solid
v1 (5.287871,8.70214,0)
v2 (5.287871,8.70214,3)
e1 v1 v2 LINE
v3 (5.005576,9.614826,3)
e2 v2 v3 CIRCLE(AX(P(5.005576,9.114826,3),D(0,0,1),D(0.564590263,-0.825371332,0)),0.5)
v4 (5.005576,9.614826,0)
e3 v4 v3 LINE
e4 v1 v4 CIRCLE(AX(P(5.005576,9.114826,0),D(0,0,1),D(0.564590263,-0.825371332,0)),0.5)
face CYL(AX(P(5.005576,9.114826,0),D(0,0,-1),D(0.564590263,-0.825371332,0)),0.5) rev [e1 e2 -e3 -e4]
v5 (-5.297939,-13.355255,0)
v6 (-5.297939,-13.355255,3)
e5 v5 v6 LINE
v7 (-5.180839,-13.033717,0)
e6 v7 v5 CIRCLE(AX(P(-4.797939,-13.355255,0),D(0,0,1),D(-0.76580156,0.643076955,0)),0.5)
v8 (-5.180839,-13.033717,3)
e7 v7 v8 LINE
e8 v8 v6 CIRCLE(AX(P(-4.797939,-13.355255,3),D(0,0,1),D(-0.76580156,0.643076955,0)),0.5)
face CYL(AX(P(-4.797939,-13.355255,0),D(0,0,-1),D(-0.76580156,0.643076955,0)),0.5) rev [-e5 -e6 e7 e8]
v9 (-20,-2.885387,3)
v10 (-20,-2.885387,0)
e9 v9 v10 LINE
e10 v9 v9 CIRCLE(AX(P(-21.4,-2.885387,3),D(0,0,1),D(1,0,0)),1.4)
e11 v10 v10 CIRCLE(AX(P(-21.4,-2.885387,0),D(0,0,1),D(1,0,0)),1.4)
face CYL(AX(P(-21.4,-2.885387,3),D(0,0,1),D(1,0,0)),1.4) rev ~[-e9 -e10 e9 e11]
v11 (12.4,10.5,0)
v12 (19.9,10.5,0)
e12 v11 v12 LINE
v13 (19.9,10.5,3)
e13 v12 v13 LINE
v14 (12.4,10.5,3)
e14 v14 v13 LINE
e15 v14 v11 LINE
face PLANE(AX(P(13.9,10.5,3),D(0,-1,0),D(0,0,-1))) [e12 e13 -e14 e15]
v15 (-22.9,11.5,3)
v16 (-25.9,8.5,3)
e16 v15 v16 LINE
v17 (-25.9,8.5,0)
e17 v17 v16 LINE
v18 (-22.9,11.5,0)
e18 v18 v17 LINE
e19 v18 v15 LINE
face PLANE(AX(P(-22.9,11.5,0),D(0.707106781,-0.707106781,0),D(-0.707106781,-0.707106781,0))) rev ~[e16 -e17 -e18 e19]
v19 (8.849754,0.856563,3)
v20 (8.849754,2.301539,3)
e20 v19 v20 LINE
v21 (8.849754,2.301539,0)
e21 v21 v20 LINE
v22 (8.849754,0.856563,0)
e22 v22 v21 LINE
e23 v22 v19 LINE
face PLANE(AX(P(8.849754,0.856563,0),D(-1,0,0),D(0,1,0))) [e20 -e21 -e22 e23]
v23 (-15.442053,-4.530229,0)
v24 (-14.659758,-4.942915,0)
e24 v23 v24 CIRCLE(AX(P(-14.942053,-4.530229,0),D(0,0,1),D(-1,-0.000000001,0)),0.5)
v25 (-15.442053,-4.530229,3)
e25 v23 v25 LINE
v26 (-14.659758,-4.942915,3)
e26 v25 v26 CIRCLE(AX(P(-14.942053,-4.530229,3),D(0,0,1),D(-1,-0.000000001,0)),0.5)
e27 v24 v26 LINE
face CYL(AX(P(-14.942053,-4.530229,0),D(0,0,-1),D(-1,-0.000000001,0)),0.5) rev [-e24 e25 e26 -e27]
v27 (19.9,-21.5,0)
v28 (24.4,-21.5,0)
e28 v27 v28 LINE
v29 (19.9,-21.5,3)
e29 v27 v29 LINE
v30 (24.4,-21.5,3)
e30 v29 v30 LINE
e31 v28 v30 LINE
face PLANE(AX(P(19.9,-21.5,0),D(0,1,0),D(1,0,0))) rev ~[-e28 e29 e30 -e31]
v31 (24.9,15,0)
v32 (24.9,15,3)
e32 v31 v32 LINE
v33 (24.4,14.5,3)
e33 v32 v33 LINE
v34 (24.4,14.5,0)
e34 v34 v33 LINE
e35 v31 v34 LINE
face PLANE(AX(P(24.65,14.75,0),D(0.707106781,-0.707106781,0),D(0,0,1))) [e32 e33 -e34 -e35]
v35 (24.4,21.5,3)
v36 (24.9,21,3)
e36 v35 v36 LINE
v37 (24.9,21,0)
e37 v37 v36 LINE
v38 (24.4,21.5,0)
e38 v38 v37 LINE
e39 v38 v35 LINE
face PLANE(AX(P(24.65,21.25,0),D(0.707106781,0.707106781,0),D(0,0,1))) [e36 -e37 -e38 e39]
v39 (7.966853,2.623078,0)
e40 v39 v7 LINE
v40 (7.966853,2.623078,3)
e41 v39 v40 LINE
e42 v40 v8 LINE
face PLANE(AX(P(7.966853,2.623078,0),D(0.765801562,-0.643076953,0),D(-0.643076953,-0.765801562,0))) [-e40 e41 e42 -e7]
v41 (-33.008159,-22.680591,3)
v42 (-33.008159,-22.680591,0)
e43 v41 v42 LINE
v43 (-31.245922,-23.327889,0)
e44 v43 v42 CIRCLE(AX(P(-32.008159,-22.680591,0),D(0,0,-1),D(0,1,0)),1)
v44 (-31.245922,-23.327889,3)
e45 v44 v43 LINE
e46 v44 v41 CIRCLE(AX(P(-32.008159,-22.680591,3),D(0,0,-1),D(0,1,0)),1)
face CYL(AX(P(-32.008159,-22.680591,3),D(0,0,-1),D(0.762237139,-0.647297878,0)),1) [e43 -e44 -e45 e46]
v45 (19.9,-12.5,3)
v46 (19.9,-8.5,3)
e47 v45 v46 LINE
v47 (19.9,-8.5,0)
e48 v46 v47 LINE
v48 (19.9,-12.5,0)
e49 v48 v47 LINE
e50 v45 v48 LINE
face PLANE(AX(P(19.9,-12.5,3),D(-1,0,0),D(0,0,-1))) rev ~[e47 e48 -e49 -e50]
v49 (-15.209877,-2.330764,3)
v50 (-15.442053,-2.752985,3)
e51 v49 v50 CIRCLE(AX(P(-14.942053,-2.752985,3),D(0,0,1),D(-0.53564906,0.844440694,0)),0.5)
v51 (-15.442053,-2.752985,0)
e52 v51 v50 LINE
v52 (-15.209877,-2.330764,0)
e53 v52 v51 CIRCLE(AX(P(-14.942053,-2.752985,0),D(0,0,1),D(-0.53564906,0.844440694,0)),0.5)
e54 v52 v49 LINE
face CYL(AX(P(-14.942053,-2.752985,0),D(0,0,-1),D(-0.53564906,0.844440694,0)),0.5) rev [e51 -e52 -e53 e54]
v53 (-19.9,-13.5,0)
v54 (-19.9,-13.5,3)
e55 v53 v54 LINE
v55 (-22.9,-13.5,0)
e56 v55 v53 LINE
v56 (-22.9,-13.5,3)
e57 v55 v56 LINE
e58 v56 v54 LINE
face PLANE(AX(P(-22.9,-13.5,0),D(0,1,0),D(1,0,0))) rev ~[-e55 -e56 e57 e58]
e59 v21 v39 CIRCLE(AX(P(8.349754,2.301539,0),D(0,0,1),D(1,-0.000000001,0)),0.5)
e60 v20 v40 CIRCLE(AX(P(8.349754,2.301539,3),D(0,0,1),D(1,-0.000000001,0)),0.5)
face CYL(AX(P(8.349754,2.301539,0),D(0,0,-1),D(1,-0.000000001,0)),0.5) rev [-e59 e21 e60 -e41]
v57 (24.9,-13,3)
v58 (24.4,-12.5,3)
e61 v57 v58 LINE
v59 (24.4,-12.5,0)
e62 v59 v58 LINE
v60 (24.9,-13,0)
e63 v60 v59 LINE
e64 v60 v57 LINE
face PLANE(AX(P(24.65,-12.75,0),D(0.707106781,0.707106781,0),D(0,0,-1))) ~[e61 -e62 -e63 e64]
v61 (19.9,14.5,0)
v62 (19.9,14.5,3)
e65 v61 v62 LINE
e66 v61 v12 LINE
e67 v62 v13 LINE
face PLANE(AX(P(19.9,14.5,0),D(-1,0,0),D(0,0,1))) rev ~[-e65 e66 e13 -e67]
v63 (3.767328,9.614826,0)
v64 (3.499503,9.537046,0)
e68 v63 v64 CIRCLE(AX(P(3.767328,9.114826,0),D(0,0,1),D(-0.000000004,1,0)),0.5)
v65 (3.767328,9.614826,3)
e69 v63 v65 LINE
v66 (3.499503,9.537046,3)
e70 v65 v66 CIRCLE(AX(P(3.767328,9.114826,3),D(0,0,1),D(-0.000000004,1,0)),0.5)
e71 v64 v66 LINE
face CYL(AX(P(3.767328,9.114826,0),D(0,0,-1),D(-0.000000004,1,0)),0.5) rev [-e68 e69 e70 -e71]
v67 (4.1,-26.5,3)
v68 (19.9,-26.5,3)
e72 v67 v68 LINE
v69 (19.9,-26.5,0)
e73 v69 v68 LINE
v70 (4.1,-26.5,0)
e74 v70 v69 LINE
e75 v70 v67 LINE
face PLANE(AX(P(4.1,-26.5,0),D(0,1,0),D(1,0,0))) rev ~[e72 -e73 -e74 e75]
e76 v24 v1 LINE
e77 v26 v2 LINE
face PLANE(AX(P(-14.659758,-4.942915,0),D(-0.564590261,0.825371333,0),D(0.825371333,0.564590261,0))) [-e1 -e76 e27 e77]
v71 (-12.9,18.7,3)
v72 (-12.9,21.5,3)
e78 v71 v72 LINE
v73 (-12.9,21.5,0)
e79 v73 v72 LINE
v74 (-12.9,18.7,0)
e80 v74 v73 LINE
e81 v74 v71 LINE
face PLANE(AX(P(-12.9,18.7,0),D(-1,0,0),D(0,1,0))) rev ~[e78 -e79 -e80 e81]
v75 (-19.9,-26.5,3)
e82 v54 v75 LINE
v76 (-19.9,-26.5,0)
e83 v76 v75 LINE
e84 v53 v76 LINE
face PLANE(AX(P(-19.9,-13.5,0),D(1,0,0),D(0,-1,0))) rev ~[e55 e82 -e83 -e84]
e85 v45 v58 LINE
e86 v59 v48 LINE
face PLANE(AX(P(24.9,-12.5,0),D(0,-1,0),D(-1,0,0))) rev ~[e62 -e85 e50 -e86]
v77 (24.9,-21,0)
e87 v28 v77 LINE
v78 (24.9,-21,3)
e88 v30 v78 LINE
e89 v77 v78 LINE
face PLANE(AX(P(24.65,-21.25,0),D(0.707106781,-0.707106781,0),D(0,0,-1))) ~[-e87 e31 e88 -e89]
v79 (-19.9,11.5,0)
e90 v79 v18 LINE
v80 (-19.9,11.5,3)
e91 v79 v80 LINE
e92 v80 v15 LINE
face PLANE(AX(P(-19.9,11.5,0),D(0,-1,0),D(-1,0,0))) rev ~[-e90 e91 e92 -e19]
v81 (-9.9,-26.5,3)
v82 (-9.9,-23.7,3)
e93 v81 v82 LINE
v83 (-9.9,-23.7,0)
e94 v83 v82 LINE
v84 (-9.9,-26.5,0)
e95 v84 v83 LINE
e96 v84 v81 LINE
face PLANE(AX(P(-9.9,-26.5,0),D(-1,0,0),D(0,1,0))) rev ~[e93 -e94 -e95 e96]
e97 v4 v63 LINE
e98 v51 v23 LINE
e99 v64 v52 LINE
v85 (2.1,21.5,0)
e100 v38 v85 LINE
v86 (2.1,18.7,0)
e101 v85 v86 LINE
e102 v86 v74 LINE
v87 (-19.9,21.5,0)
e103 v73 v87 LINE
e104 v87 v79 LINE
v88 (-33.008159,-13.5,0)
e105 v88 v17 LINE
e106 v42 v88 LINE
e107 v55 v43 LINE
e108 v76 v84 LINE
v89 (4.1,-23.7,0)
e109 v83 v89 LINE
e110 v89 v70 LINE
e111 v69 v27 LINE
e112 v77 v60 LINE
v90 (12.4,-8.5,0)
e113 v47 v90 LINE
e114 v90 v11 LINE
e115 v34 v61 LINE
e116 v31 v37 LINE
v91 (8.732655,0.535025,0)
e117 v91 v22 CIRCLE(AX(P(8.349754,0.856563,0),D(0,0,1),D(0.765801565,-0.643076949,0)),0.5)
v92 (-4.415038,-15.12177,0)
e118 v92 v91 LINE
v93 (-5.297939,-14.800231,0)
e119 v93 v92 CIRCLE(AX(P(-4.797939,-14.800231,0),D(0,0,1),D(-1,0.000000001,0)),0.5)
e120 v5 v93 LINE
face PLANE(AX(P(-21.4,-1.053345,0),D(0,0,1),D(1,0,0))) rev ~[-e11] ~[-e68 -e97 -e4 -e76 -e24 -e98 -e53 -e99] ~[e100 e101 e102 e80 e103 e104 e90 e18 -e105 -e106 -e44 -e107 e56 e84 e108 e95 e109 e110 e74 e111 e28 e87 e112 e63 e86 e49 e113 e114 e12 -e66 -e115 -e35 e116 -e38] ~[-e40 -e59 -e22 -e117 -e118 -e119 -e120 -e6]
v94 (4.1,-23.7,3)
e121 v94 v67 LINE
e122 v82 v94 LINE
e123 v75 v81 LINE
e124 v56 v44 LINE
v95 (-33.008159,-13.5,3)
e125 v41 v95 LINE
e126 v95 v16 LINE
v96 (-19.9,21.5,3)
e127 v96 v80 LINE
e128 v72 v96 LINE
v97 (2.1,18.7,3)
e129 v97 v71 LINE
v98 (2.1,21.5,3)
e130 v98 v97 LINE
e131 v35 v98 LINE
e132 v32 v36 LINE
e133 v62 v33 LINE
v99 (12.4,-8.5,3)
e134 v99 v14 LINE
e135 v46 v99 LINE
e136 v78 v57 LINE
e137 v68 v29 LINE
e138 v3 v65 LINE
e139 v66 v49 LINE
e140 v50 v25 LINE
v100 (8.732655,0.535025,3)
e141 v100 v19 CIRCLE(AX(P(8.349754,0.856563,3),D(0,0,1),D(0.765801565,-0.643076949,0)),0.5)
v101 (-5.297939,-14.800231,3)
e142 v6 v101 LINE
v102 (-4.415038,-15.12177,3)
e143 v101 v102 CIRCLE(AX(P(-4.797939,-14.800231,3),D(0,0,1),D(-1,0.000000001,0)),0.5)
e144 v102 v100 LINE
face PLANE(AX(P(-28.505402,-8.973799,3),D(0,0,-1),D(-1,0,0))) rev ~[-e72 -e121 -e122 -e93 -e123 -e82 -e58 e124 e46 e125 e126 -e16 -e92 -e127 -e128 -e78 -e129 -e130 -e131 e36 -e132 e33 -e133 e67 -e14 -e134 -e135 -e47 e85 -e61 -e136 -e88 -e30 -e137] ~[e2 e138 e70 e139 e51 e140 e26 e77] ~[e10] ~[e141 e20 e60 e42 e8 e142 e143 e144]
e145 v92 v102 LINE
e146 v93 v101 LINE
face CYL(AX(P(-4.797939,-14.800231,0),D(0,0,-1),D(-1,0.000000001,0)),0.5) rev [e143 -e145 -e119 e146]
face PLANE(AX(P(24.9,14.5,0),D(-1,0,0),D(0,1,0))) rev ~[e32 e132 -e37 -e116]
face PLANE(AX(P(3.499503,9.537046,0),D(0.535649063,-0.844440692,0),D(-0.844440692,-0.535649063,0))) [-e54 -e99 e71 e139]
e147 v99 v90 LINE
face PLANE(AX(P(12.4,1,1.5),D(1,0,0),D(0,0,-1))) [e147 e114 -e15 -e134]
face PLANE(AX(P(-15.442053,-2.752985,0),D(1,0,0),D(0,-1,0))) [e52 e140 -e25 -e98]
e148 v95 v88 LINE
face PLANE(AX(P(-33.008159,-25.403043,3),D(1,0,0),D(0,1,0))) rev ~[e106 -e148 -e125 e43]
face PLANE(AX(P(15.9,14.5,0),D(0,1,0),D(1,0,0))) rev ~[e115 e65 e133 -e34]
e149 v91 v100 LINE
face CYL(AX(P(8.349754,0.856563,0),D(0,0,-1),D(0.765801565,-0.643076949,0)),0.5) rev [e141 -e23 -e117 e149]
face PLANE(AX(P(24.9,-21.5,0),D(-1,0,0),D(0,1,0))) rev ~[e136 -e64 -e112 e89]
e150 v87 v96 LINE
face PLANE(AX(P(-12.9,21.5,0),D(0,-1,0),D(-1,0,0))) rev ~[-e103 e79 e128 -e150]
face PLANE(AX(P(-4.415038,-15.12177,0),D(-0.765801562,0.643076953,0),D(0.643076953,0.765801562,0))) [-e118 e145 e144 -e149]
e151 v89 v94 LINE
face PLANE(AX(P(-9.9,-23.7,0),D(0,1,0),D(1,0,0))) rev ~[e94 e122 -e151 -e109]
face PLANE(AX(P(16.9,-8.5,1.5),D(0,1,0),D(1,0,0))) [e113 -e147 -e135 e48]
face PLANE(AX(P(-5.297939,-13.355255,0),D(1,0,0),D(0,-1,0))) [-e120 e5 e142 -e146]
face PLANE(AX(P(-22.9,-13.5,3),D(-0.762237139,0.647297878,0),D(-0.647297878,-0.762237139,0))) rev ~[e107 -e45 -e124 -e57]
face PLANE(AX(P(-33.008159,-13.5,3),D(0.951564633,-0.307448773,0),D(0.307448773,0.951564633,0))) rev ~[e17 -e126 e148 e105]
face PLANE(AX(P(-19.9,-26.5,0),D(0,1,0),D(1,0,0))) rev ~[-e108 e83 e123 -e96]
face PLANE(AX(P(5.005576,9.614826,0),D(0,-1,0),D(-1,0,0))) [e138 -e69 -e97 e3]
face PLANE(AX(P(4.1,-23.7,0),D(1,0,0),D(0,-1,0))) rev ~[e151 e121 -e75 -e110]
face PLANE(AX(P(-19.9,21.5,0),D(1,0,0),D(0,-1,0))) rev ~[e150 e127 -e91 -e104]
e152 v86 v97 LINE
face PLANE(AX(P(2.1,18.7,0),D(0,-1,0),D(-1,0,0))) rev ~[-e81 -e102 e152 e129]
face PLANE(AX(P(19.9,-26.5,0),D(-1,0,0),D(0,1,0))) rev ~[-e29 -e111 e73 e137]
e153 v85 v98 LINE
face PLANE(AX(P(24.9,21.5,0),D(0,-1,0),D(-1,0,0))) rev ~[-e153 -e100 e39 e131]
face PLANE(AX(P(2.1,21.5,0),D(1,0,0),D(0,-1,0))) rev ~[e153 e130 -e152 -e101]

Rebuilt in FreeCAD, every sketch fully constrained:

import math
import FreeCAD as App
import Part
import Sketcher
from FreeCAD import Vector
Q = App.Units.Quantity


def edges_at(feature, points):
    """Names of the edges that pass closest to the given points."""
    edges = feature.Shape.Edges
    near = lambda p: min(range(len(edges)), key=lambda i: edges[i].distToShape(Part.Vertex(*p))[0])
    return sorted({f"Edge{near(p) + 1}" for p in points})

doc = App.newDocument("Part")
body = doc.addObject("PartDesign::Body", "Body")

# Sketch on XY plane
sketch1 = body.newObject("Sketcher::SketchObject", "Sketch")
sketch1.AttachmentSupport = (doc.getObject("XY_Plane"), [""])
sketch1.MapMode = "FlatFace"
sketch1.addGeometry(Part.LineSegment(Vector(24.9, -12.5, 0), Vector(15.9, -12.5, 0)), False)
sketch1.addGeometry(Part.LineSegment(Vector(15.9, -12.5, 0), Vector(15.9, 14.5, 0)), False)
sketch1.addGeometry(Part.LineSegment(Vector(15.9, 14.5, 0), Vector(24.9, 14.5, 0)), False)
sketch1.addGeometry(Part.LineSegment(Vector(24.9, 14.5, 0), Vector(24.9, 21.5, 0)), False)
sketch1.addGeometry(Part.LineSegment(Vector(24.9, 21.5, 0), Vector(2.1, 21.5, 0)), False)
sketch1.addGeometry(Part.LineSegment(Vector(2.1, 21.5, 0), Vector(2.1, 18.7, 0)), False)
sketch1.addGeometry(Part.LineSegment(Vector(2.1, 18.7, 0), Vector(-12.9, 18.7, 0)), False)
sketch1.addGeometry(Part.LineSegment(Vector(-12.9, 18.7, 0), Vector(-12.9, 21.5, 0)), False)
sketch1.addGeometry(Part.LineSegment(Vector(-12.9, 21.5, 0), Vector(-19.9, 21.5, 0)), False)
sketch1.addGeometry(Part.LineSegment(Vector(-19.9, 21.5, 0), Vector(-19.9, 11.5, 0)), False)
sketch1.addGeometry(Part.LineSegment(Vector(-19.9, 11.5, 0), Vector(-22.9, 11.5, 0)), False)
sketch1.addGeometry(Part.LineSegment(Vector(-22.9, 11.5, 0), Vector(-25.9, 8.5, 0)), False)
sketch1.addGeometry(Part.LineSegment(Vector(-25.9, 8.5, 0), Vector(-25.9, -10.5, 0)), False)
sketch1.addGeometry(Part.LineSegment(Vector(-25.9, -10.5, 0), Vector(-22.9, -13.5, 0)), False)
sketch1.addGeometry(Part.LineSegment(Vector(-22.9, -13.5, 0), Vector(-19.9, -13.5, 0)), False)
sketch1.addGeometry(Part.LineSegment(Vector(-19.9, -13.5, 0), Vector(-19.9, -26.5, 0)), False)
sketch1.addGeometry(Part.LineSegment(Vector(-19.9, -26.5, 0), Vector(-9.9, -26.5, 0)), False)
sketch1.addGeometry(Part.LineSegment(Vector(-9.9, -26.5, 0), Vector(-9.9, -23.7, 0)), False)
sketch1.addGeometry(Part.LineSegment(Vector(-9.9, -23.7, 0), Vector(4.1, -23.7, 0)), False)
sketch1.addGeometry(Part.LineSegment(Vector(4.1, -23.7, 0), Vector(4.1, -26.5, 0)), False)
sketch1.addGeometry(Part.LineSegment(Vector(4.1, -26.5, 0), Vector(19.9, -26.5, 0)), False)
sketch1.addGeometry(Part.LineSegment(Vector(19.9, -26.5, 0), Vector(19.9, -21.5, 0)), False)
sketch1.addGeometry(Part.LineSegment(Vector(19.9, -21.5, 0), Vector(24.9, -21.5, 0)), False)
sketch1.addGeometry(Part.LineSegment(Vector(24.9, -21.5, 0), Vector(24.9, -12.5, 0)), False)
sketch1.addGeometry(Part.LineSegment(Vector(-5.180839, -13.033717, 0), Vector(7.966853, 2.623078, 0)), False)
sketch1.addGeometry(Part.ArcOfCircle(Part.Circle(Vector(8.349754, 2.301539, 0), Vector(0, 0, 1), 0.5), math.radians(0), math.radians(139.978355)), False)
sketch1.addGeometry(Part.LineSegment(Vector(8.849754, 2.301539, 0), Vector(8.849754, 0.856563, 0)), False)
sketch1.addGeometry(Part.ArcOfCircle(Part.Circle(Vector(8.349754, 0.856563, 0), Vector(0, 0, 1), 0.5), math.radians(-40.021644), math.radians(0)), False)
sketch1.addGeometry(Part.LineSegment(Vector(8.732655, 0.535025, 0), Vector(-4.415038, -15.12177, 0)), False)
sketch1.addGeometry(Part.ArcOfCircle(Part.Circle(Vector(-4.797939, -14.800231, 0), Vector(0, 0, 1), 0.5), math.radians(180), math.radians(319.978355)), False)
sketch1.addGeometry(Part.LineSegment(Vector(-5.297939, -14.800231, 0), Vector(-5.297939, -13.355255, 0)), False)
sketch1.addGeometry(Part.ArcOfCircle(Part.Circle(Vector(-4.797939, -13.355255, 0), Vector(0, 0, 1), 0.5), math.radians(139.978355), math.radians(180)), False)
sketch1.addGeometry(Part.Circle(Vector(-21.4, -1.053345, 0), Vector(0, 0, 1), 1.8), False)
sketch1.addGeometry(Part.LineSegment(Vector(-15.209877, -2.330764, 0), Vector(3.499503, 9.537046, 0)), False)
sketch1.addGeometry(Part.ArcOfCircle(Part.Circle(Vector(3.767328, 9.114826, 0), Vector(0, 0, 1), 0.5), math.radians(90), math.radians(122.38794)), False)
sketch1.addGeometry(Part.LineSegment(Vector(3.767328, 9.614826, 0), Vector(5.005576, 9.614826, 0)), False)
sketch1.addGeometry(Part.ArcOfCircle(Part.Circle(Vector(5.005576, 9.114826, 0), Vector(0, 0, 1), 0.5), math.radians(-55.626157), math.radians(90)), False)
sketch1.addGeometry(Part.LineSegment(Vector(5.287871, 8.70214, 0), Vector(-14.659758, -4.942915, 0)), False)
sketch1.addGeometry(Part.ArcOfCircle(Part.Circle(Vector(-14.942053, -4.530229, 0), Vector(0, 0, 1), 0.5), math.radians(180), math.radians(304.373843)), False)
sketch1.addGeometry(Part.LineSegment(Vector(-15.442053, -4.530229, 0), Vector(-15.442053, -2.752985, 0)), False)
sketch1.addGeometry(Part.ArcOfCircle(Part.Circle(Vector(-14.942053, -2.752985, 0), Vector(0, 0, 1), 0.5), math.radians(122.38794), math.radians(180)), False)
sketch1.addConstraint(Sketcher.Constraint("Coincident", 0, 2, 1, 1))
sketch1.addConstraint(Sketcher.Constraint("Coincident", 1, 2, 2, 1))
sketch1.addConstraint(Sketcher.Constraint("Coincident", 2, 2, 3, 1))
sketch1.addConstraint(Sketcher.Constraint("Coincident", 3, 2, 4, 1))
sketch1.addConstraint(Sketcher.Constraint("Coincident", 4, 2, 5, 1))
sketch1.addConstraint(Sketcher.Constraint("Coincident", 5, 2, 6, 1))
sketch1.addConstraint(Sketcher.Constraint("Coincident", 6, 2, 7, 1))
sketch1.addConstraint(Sketcher.Constraint("Coincident", 7, 2, 8, 1))
sketch1.addConstraint(Sketcher.Constraint("Coincident", 8, 2, 9, 1))
sketch1.addConstraint(Sketcher.Constraint("Coincident", 9, 2, 10, 1))
sketch1.addConstraint(Sketcher.Constraint("Coincident", 10, 2, 11, 1))
sketch1.addConstraint(Sketcher.Constraint("Coincident", 11, 2, 12, 1))
sketch1.addConstraint(Sketcher.Constraint("Coincident", 12, 2, 13, 1))
sketch1.addConstraint(Sketcher.Constraint("Coincident", 13, 2, 14, 1))
sketch1.addConstraint(Sketcher.Constraint("Coincident", 14, 2, 15, 1))
sketch1.addConstraint(Sketcher.Constraint("Coincident", 15, 2, 16, 1))
sketch1.addConstraint(Sketcher.Constraint("Coincident", 16, 2, 17, 1))
sketch1.addConstraint(Sketcher.Constraint("Coincident", 17, 2, 18, 1))
sketch1.addConstraint(Sketcher.Constraint("Coincident", 18, 2, 19, 1))
sketch1.addConstraint(Sketcher.Constraint("Coincident", 19, 2, 20, 1))
sketch1.addConstraint(Sketcher.Constraint("Coincident", 20, 2, 21, 1))
sketch1.addConstraint(Sketcher.Constraint("Coincident", 21, 2, 22, 1))
sketch1.addConstraint(Sketcher.Constraint("Coincident", 22, 2, 23, 1))
sketch1.addConstraint(Sketcher.Constraint("Coincident", 23, 2, 0, 1))
sketch1.addConstraint(Sketcher.Constraint("Coincident", 24, 2, 25, 2))
sketch1.addConstraint(Sketcher.Constraint("Coincident", 25, 1, 26, 1))
sketch1.addConstraint(Sketcher.Constraint("Coincident", 26, 2, 27, 2))
sketch1.addConstraint(Sketcher.Constraint("Coincident", 27, 1, 28, 1))
sketch1.addConstraint(Sketcher.Constraint("Coincident", 28, 2, 29, 2))
sketch1.addConstraint(Sketcher.Constraint("Coincident", 29, 1, 30, 1))
sketch1.addConstraint(Sketcher.Constraint("Coincident", 30, 2, 31, 2))
sketch1.addConstraint(Sketcher.Constraint("Coincident", 31, 1, 24, 1))
sketch1.addConstraint(Sketcher.Constraint("Coincident", 33, 2, 34, 2))
sketch1.addConstraint(Sketcher.Constraint("Coincident", 34, 1, 35, 1))
sketch1.addConstraint(Sketcher.Constraint("Coincident", 35, 2, 36, 2))
sketch1.addConstraint(Sketcher.Constraint("Coincident", 36, 1, 37, 1))
sketch1.addConstraint(Sketcher.Constraint("Coincident", 37, 2, 38, 2))
sketch1.addConstraint(Sketcher.Constraint("Coincident", 38, 1, 39, 1))
sketch1.addConstraint(Sketcher.Constraint("Coincident", 39, 2, 40, 2))
sketch1.addConstraint(Sketcher.Constraint("Coincident", 40, 1, 33, 1))
sketch1.addConstraint(Sketcher.Constraint("Horizontal", 0))
sketch1.addConstraint(Sketcher.Constraint("Vertical", 1))
sketch1.addConstraint(Sketcher.Constraint("Horizontal", 2))
sketch1.addConstraint(Sketcher.Constraint("Vertical", 3))
sketch1.addConstraint(Sketcher.Constraint("Horizontal", 4))
sketch1.addConstraint(Sketcher.Constraint("Vertical", 5))
sketch1.addConstraint(Sketcher.Constraint("Horizontal", 6))
sketch1.addConstraint(Sketcher.Constraint("Vertical", 7))
sketch1.addConstraint(Sketcher.Constraint("Horizontal", 8))
sketch1.addConstraint(Sketcher.Constraint("Vertical", 9))
sketch1.addConstraint(Sketcher.Constraint("Horizontal", 10))
sketch1.addConstraint(Sketcher.Constraint("Vertical", 12))
sketch1.addConstraint(Sketcher.Constraint("Horizontal", 14))
sketch1.addConstraint(Sketcher.Constraint("Vertical", 15))
sketch1.addConstraint(Sketcher.Constraint("Horizontal", 16))
sketch1.addConstraint(Sketcher.Constraint("Vertical", 17))
sketch1.addConstraint(Sketcher.Constraint("Horizontal", 18))
sketch1.addConstraint(Sketcher.Constraint("Vertical", 19))
sketch1.addConstraint(Sketcher.Constraint("Horizontal", 20))
sketch1.addConstraint(Sketcher.Constraint("Vertical", 21))
sketch1.addConstraint(Sketcher.Constraint("Horizontal", 22))
sketch1.addConstraint(Sketcher.Constraint("Vertical", 23))
sketch1.addConstraint(Sketcher.Constraint("Vertical", 26))
sketch1.addConstraint(Sketcher.Constraint("Vertical", 30))
sketch1.addConstraint(Sketcher.Constraint("Horizontal", 35))
sketch1.addConstraint(Sketcher.Constraint("Vertical", 39))
sketch1.addConstraint(Sketcher.Constraint("Diameter", 32, Q("3.6 mm")))
sketch1.addConstraint(Sketcher.Constraint("Radius", 25, Q("0.5 mm")))
sketch1.addConstraint(Sketcher.Constraint("Radius", 27, Q("0.5 mm")))
sketch1.addConstraint(Sketcher.Constraint("Radius", 29, Q("0.5 mm")))
sketch1.addConstraint(Sketcher.Constraint("Radius", 31, Q("0.5 mm")))
sketch1.addConstraint(Sketcher.Constraint("Radius", 34, Q("0.5 mm")))
sketch1.addConstraint(Sketcher.Constraint("Radius", 36, Q("0.5 mm")))
sketch1.addConstraint(Sketcher.Constraint("Radius", 38, Q("0.5 mm")))
sketch1.addConstraint(Sketcher.Constraint("Radius", 40, Q("0.5 mm")))
sketch1.addConstraint(Sketcher.Constraint("DistanceX", 0, 2, 0, 1, Q("9 mm")))
sketch1.addConstraint(Sketcher.Constraint("DistanceX", 2, 1, 2, 2, Q("9 mm")))
sketch1.addConstraint(Sketcher.Constraint("DistanceX", 6, 2, 6, 1, Q("15 mm")))
sketch1.addConstraint(Sketcher.Constraint("DistanceX", 8, 2, 8, 1, Q("7 mm")))
sketch1.addConstraint(Sketcher.Constraint("DistanceX", 10, 2, 10, 1, Q("3 mm")))
sketch1.addConstraint(Sketcher.Constraint("DistanceX", 14, 1, 14, 2, Q("3 mm")))
sketch1.addConstraint(Sketcher.Constraint("DistanceX", 16, 1, 16, 2, Q("10 mm")))
sketch1.addConstraint(Sketcher.Constraint("DistanceX", 18, 1, 18, 2, Q("14 mm")))
sketch1.addConstraint(Sketcher.Constraint("DistanceX", 22, 1, 22, 2, Q("5 mm")))
sketch1.addConstraint(Sketcher.Constraint("DistanceY", 1, 1, 1, 2, Q("27 mm")))
sketch1.addConstraint(Sketcher.Constraint("DistanceY", 3, 1, 3, 2, Q("7 mm")))
sketch1.addConstraint(Sketcher.Constraint("DistanceY", 9, 2, 9, 1, Q("10 mm")))
sketch1.addConstraint(Sketcher.Constraint("DistanceY", 12, 2, 12, 1, Q("19 mm")))
sketch1.addConstraint(Sketcher.Constraint("DistanceY", 15, 2, 15, 1, Q("13 mm")))
sketch1.addConstraint(Sketcher.Constraint("DistanceY", 21, 1, 21, 2, Q("5 mm")))
sketch1.addConstraint(Sketcher.Constraint("DistanceY", 23, 1, 23, 2, Q("9 mm")))
sketch1.addConstraint(Sketcher.Constraint("DistanceX", 4, 2, 4, 1, Q("22.8 mm")))
sketch1.addConstraint(Sketcher.Constraint("DistanceX", 20, 1, 20, 2, Q("15.8 mm")))
sketch1.addConstraint(Sketcher.Constraint("DistanceY", 5, 2, 5, 1, Q("2.8 mm")))
sketch1.addConstraint(Sketcher.Constraint("DistanceY", 7, 1, 7, 2, Q("2.8 mm")))
sketch1.addConstraint(Sketcher.Constraint("DistanceY", 17, 1, 17, 2, Q("2.8 mm")))
sketch1.addConstraint(Sketcher.Constraint("DistanceY", 19, 2, 19, 1, Q("2.8 mm")))
sketch1.addConstraint(Sketcher.Constraint("DistanceX", 11, 2, 10, 2, Q("3 mm")))
sketch1.addConstraint(Sketcher.Constraint("DistanceY", 11, 2, 10, 2, Q("3 mm")))
sketch1.addConstraint(Sketcher.Constraint("DistanceX", 32, 3, -1, 1, Q("21.4 mm")))
sketch1.addConstraint(Sketcher.Constraint("DistanceX", -1, 1, 0, 2, Q("15.9 mm")))
sketch1.addConstraint(Sketcher.Constraint("DistanceY", 0, 2, -1, 1, Q("12.5 mm")))
sketch1.addConstraint(Sketcher.Constraint("DistanceX", 35, 1, 35, 2, Q("1.238248 mm")))
sketch1.addConstraint(Sketcher.Constraint("DistanceX", 24, 2, 25, 3, Q("0.382901 mm")))
sketch1.addConstraint(Sketcher.Constraint("DistanceX", 27, 1, 26, 2, Q("0.117099 mm")))
sketch1.addConstraint(Sketcher.Constraint("DistanceX", 29, 3, 28, 2, Q("0.382901 mm")))
sketch1.addConstraint(Sketcher.Constraint("DistanceX", 30, 2, 31, 1, Q("0.117099 mm")))
sketch1.addConstraint(Sketcher.Constraint("DistanceY", 26, 2, 26, 1, Q("1.444976 mm")))
sketch1.addConstraint(Sketcher.Constraint("DistanceY", 30, 1, 30, 2, Q("1.444976 mm")))
sketch1.addConstraint(Sketcher.Constraint("DistanceY", 39, 1, 39, 2, Q("1.777244 mm")))
sketch1.addConstraint(Sketcher.Constraint("DistanceY", -1, 1, 25, 3, Q("2.301539 mm")))
sketch1.addConstraint(Sketcher.Constraint("DistanceX", 29, 3, -1, 1, Q("4.797939 mm")))
sketch1.addConstraint(Sketcher.Constraint("DistanceY", 29, 3, -1, 1, Q("14.800231 mm")))
sketch1.addConstraint(Sketcher.Constraint("DistanceY", 38, 3, -1, 1, Q("4.530229 mm")))
sketch1.addConstraint(Sketcher.Constraint("DistanceY", -1, 1, 25, 1, Q("2.301539 mm")))
sketch1.addConstraint(Sketcher.Constraint("DistanceY", 29, 1, -1, 1, Q("14.800231 mm")))
sketch1.addConstraint(Sketcher.Constraint("DistanceX", -1, 1, 36, 1, Q("5.287871 mm")))
sketch1.addConstraint(Sketcher.Constraint("DistanceY", -1, 1, 36, 1, Q("8.70214 mm")))
sketch1.addConstraint(Sketcher.Constraint("DistanceY", 38, 1, -1, 1, Q("4.530229 mm")))
sketch1.addConstraint(Sketcher.Constraint("DistanceY", 31, 3, 27, 3, Q("14.211819 mm")))
sketch1.addConstraint(Sketcher.Constraint("DistanceY", 31, 3, 32, 3, Q("12.301911 mm")))
sketch1.addConstraint(Sketcher.Constraint("DistanceY", 31, 3, 34, 3, Q("22.470081 mm")))
sketch1.addConstraint(Sketcher.Constraint("DistanceX", 34, 3, 36, 3, Q("1.238248 mm")))
sketch1.addConstraint(Sketcher.Constraint("DistanceX", 36, 3, 25, 3, Q("3.344178 mm")))
sketch1.addConstraint(Sketcher.Constraint("DistanceX", 38, 3, 34, 3, Q("18.709381 mm")))
sketch1.addConstraint(Sketcher.Constraint("DistanceY", 40, 3, 32, 3, Q("1.69964 mm")))
sketch1.addConstraint(Sketcher.Constraint("DistanceY", 27, 1, 26, 2, Q("0.321538 mm")))
sketch1.addConstraint(Sketcher.Constraint("DistanceY", 34, 3, 33, 2, Q("0.42222 mm")))
sketch1.addConstraint(Sketcher.Constraint("DistanceX", 34, 1, 36, 3, Q("1.238248 mm")))
sketch1.addConstraint(Sketcher.Constraint("DistanceY", 37, 2, 40, 3, Q("2.18993 mm")))
sketch1.addConstraint(Sketcher.Constraint("DistanceY", 39, 2, 40, 1, Q("0.42222 mm")))
pad1 = body.newObject("PartDesign::Pad", "Pad")
pad1.Profile = sketch1
pad1.Length = 3

# Sketch on YZ plane
sketch2 = body.newObject("Sketcher::SketchObject", "Sketch001")
sketch2.AttachmentSupport = (doc.getObject("YZ_Plane"), [""])
sketch2.MapMode = "FlatFace"
sketch2.AttachmentOffset = App.Placement(Vector(0, 0, 15.9), App.Rotation())
sketch2.addGeometry(Part.LineSegment(Vector(14.5, 3, 0), Vector(-12.5, 3, 0)), False)
sketch2.addGeometry(Part.LineSegment(Vector(-12.5, 3, 0), Vector(-12.5, 0, 0)), False)
sketch2.addGeometry(Part.LineSegment(Vector(-12.5, 0, 0), Vector(14.5, 0, 0)), False)
sketch2.addGeometry(Part.LineSegment(Vector(14.5, 0, 0), Vector(14.5, 3, 0)), False)
sketch2.addConstraint(Sketcher.Constraint("Coincident", 0, 2, 1, 1))
sketch2.addConstraint(Sketcher.Constraint("Coincident", 1, 2, 2, 1))
sketch2.addConstraint(Sketcher.Constraint("Coincident", 2, 2, 3, 1))
sketch2.addConstraint(Sketcher.Constraint("Coincident", 3, 2, 0, 1))
sketch2.addConstraint(Sketcher.Constraint("Horizontal", 0))
sketch2.addConstraint(Sketcher.Constraint("Vertical", 1))
sketch2.addConstraint(Sketcher.Constraint("Horizontal", 2))
sketch2.addConstraint(Sketcher.Constraint("Vertical", 3))
sketch2.addConstraint(Sketcher.Constraint("PointOnObject", 1, 2, -1))
sketch2.addConstraint(Sketcher.Constraint("DistanceX", 0, 2, 0, 1, Q("27 mm")))
sketch2.addConstraint(Sketcher.Constraint("DistanceY", 1, 2, 1, 1, Q("3 mm")))
sketch2.addConstraint(Sketcher.Constraint("DistanceX", 0, 2, -1, 1, Q("12.5 mm")))
pocket1 = body.newObject("PartDesign::Pocket", "Pocket")
pocket1.Profile = sketch2
pocket1.Length = 2

# Sketch on XZ plane
sketch3 = body.newObject("Sketcher::SketchObject", "Sketch002")
sketch3.AttachmentSupport = (doc.getObject("XZ_Plane"), [""])
sketch3.MapMode = "FlatFace"
sketch3.AttachmentOffset = App.Placement(Vector(0, 0, -14.5), App.Rotation())
sketch3.addGeometry(Part.LineSegment(Vector(13.9, 3, 0), Vector(13.9, 0, 0)), False)
sketch3.addGeometry(Part.LineSegment(Vector(13.9, 0, 0), Vector(19.9, 0, 0)), False)
sketch3.addGeometry(Part.LineSegment(Vector(19.9, 0, 0), Vector(19.9, 3, 0)), False)
sketch3.addGeometry(Part.LineSegment(Vector(19.9, 3, 0), Vector(13.9, 3, 0)), False)
sketch3.addConstraint(Sketcher.Constraint("Coincident", 0, 2, 1, 1))
sketch3.addConstraint(Sketcher.Constraint("Coincident", 1, 2, 2, 1))
sketch3.addConstraint(Sketcher.Constraint("Coincident", 2, 2, 3, 1))
sketch3.addConstraint(Sketcher.Constraint("Coincident", 3, 2, 0, 1))
sketch3.addConstraint(Sketcher.Constraint("Vertical", 0))
sketch3.addConstraint(Sketcher.Constraint("Horizontal", 1))
sketch3.addConstraint(Sketcher.Constraint("Vertical", 2))
sketch3.addConstraint(Sketcher.Constraint("Horizontal", 3))
sketch3.addConstraint(Sketcher.Constraint("PointOnObject", 0, 2, -1))
sketch3.addConstraint(Sketcher.Constraint("DistanceX", 1, 1, 1, 2, Q("6 mm")))
sketch3.addConstraint(Sketcher.Constraint("DistanceY", 0, 2, 0, 1, Q("3 mm")))
sketch3.addConstraint(Sketcher.Constraint("DistanceX", -1, 1, 0, 2, Q("13.9 mm")))
pad2 = body.newObject("PartDesign::Pad", "Pad001")
pad2.Profile = sketch3
pad2.Length = 5

# Sketch on XZ plane
sketch4 = body.newObject("Sketcher::SketchObject", "Sketch003")
sketch4.AttachmentSupport = (doc.getObject("XZ_Plane"), [""])
sketch4.MapMode = "FlatFace"
sketch4.AttachmentOffset = App.Placement(Vector(0, 0, 12.5), App.Rotation())
sketch4.addGeometry(Part.LineSegment(Vector(13.9, 0, 0), Vector(13.9, 3, 0)), False)
sketch4.addGeometry(Part.LineSegment(Vector(13.9, 3, 0), Vector(19.9, 3, 0)), False)
sketch4.addGeometry(Part.LineSegment(Vector(19.9, 3, 0), Vector(19.9, 0, 0)), False)
sketch4.addGeometry(Part.LineSegment(Vector(19.9, 0, 0), Vector(13.9, 0, 0)), False)
sketch4.addConstraint(Sketcher.Constraint("Coincident", 0, 2, 1, 1))
sketch4.addConstraint(Sketcher.Constraint("Coincident", 1, 2, 2, 1))
sketch4.addConstraint(Sketcher.Constraint("Coincident", 2, 2, 3, 1))
sketch4.addConstraint(Sketcher.Constraint("Coincident", 3, 2, 0, 1))
sketch4.addConstraint(Sketcher.Constraint("Vertical", 0))
sketch4.addConstraint(Sketcher.Constraint("Horizontal", 1))
sketch4.addConstraint(Sketcher.Constraint("Vertical", 2))
sketch4.addConstraint(Sketcher.Constraint("Horizontal", 3))
sketch4.addConstraint(Sketcher.Constraint("PointOnObject", 2, 2, -1))
sketch4.addConstraint(Sketcher.Constraint("DistanceX", 1, 1, 1, 2, Q("6 mm")))
sketch4.addConstraint(Sketcher.Constraint("DistanceY", 0, 1, 0, 2, Q("3 mm")))
sketch4.addConstraint(Sketcher.Constraint("DistanceX", -1, 1, 0, 2, Q("13.9 mm")))
pad3 = body.newObject("PartDesign::Pad", "Pad002")
pad3.Profile = sketch4
pad3.Length = 5
pad3.Reversed = True

# Sketch on XZ plane
sketch5 = body.newObject("Sketcher::SketchObject", "Sketch004")
sketch5.AttachmentSupport = (doc.getObject("XZ_Plane"), [""])
sketch5.MapMode = "FlatFace"
sketch5.AttachmentOffset = App.Placement(Vector(0, 0, 7.5), App.Rotation())
sketch5.addGeometry(Part.LineSegment(Vector(13.9, 0, 0), Vector(13.9, 3, 0)), False)
sketch5.addGeometry(Part.LineSegment(Vector(13.9, 3, 0), Vector(19.9, 3, 0)), False)
sketch5.addGeometry(Part.LineSegment(Vector(19.9, 3, 0), Vector(19.9, 0, 0)), False)
sketch5.addGeometry(Part.LineSegment(Vector(19.9, 0, 0), Vector(13.9, 0, 0)), False)
sketch5.addConstraint(Sketcher.Constraint("Coincident", 0, 2, 1, 1))
sketch5.addConstraint(Sketcher.Constraint("Coincident", 1, 2, 2, 1))
sketch5.addConstraint(Sketcher.Constraint("Coincident", 2, 2, 3, 1))
sketch5.addConstraint(Sketcher.Constraint("Coincident", 3, 2, 0, 1))
sketch5.addConstraint(Sketcher.Constraint("Vertical", 0))
sketch5.addConstraint(Sketcher.Constraint("Horizontal", 1))
sketch5.addConstraint(Sketcher.Constraint("Vertical", 2))
sketch5.addConstraint(Sketcher.Constraint("Horizontal", 3))
sketch5.addConstraint(Sketcher.Constraint("PointOnObject", 2, 2, -1))
sketch5.addConstraint(Sketcher.Constraint("DistanceX", 1, 1, 1, 2, Q("6 mm")))
sketch5.addConstraint(Sketcher.Constraint("DistanceY", 0, 1, 0, 2, Q("3 mm")))
sketch5.addConstraint(Sketcher.Constraint("DistanceX", -1, 1, 0, 2, Q("13.9 mm")))
pocket2 = body.newObject("PartDesign::Pocket", "Pocket001")
pocket2.Profile = sketch5
pocket2.Length = 1
pocket2.Reversed = True

# Sketch on XZ plane
sketch6 = body.newObject("Sketcher::SketchObject", "Sketch005")
sketch6.AttachmentSupport = (doc.getObject("XZ_Plane"), [""])
sketch6.MapMode = "FlatFace"
sketch6.AttachmentOffset = App.Placement(Vector(0, 0, -9.5), App.Rotation())
sketch6.addGeometry(Part.LineSegment(Vector(13.9, 3, 0), Vector(13.9, 0, 0)), False)
sketch6.addGeometry(Part.LineSegment(Vector(13.9, 0, 0), Vector(19.9, 0, 0)), False)
sketch6.addGeometry(Part.LineSegment(Vector(19.9, 0, 0), Vector(19.9, 3, 0)), False)
sketch6.addGeometry(Part.LineSegment(Vector(19.9, 3, 0), Vector(13.9, 3, 0)), False)
sketch6.addConstraint(Sketcher.Constraint("Coincident", 0, 2, 1, 1))
sketch6.addConstraint(Sketcher.Constraint("Coincident", 1, 2, 2, 1))
sketch6.addConstraint(Sketcher.Constraint("Coincident", 2, 2, 3, 1))
sketch6.addConstraint(Sketcher.Constraint("Coincident", 3, 2, 0, 1))
sketch6.addConstraint(Sketcher.Constraint("Vertical", 0))
sketch6.addConstraint(Sketcher.Constraint("Horizontal", 1))
sketch6.addConstraint(Sketcher.Constraint("Vertical", 2))
sketch6.addConstraint(Sketcher.Constraint("Horizontal", 3))
sketch6.addConstraint(Sketcher.Constraint("PointOnObject", 0, 2, -1))
sketch6.addConstraint(Sketcher.Constraint("DistanceX", 1, 1, 1, 2, Q("6 mm")))
sketch6.addConstraint(Sketcher.Constraint("DistanceY", 0, 2, 0, 1, Q("3 mm")))
sketch6.addConstraint(Sketcher.Constraint("DistanceX", -1, 1, 0, 2, Q("13.9 mm")))
pocket3 = body.newObject("PartDesign::Pocket", "Pocket002")
pocket3.Profile = sketch6
pocket3.Length = 1

# Sketch on YZ plane
sketch7 = body.newObject("Sketcher::SketchObject", "Sketch006")
sketch7.AttachmentSupport = (doc.getObject("YZ_Plane"), [""])
sketch7.MapMode = "FlatFace"
sketch7.AttachmentOffset = App.Placement(Vector(0, 0, 13.9), App.Rotation())
sketch7.addGeometry(Part.LineSegment(Vector(10.5, 3, 0), Vector(-8.5, 3, 0)), False)
sketch7.addGeometry(Part.LineSegment(Vector(-8.5, 3, 0), Vector(-8.5, 0, 0)), False)
sketch7.addGeometry(Part.LineSegment(Vector(-8.5, 0, 0), Vector(10.5, 0, 0)), False)
sketch7.addGeometry(Part.LineSegment(Vector(10.5, 0, 0), Vector(10.5, 3, 0)), False)
sketch7.addConstraint(Sketcher.Constraint("Coincident", 0, 2, 1, 1))
sketch7.addConstraint(Sketcher.Constraint("Coincident", 1, 2, 2, 1))
sketch7.addConstraint(Sketcher.Constraint("Coincident", 2, 2, 3, 1))
sketch7.addConstraint(Sketcher.Constraint("Coincident", 3, 2, 0, 1))
sketch7.addConstraint(Sketcher.Constraint("Horizontal", 0))
sketch7.addConstraint(Sketcher.Constraint("Vertical", 1))
sketch7.addConstraint(Sketcher.Constraint("Horizontal", 2))
sketch7.addConstraint(Sketcher.Constraint("Vertical", 3))
sketch7.addConstraint(Sketcher.Constraint("PointOnObject", 1, 2, -1))
sketch7.addConstraint(Sketcher.Constraint("DistanceX", 0, 2, 0, 1, Q("19 mm")))
sketch7.addConstraint(Sketcher.Constraint("DistanceY", 1, 2, 1, 1, Q("3 mm")))
sketch7.addConstraint(Sketcher.Constraint("DistanceX", 0, 2, -1, 1, Q("8.5 mm")))
pocket4 = body.newObject("PartDesign::Pocket", "Pocket003")
pocket4.Profile = sketch7
pocket4.Length = 1.5

# Sketch on XY plane
sketch8 = body.newObject("Sketcher::SketchObject", "Sketch007")
sketch8.AttachmentSupport = (doc.getObject("XY_Plane"), [""])
sketch8.MapMode = "FlatFace"
sketch8.AttachmentOffset = App.Placement(Vector(0, 0, 3), App.Rotation())
sketch8.addGeometry(Part.LineSegment(Vector(-22.9, -13.5, 0), Vector(-25.9, -10.5, 0)), False)
sketch8.addGeometry(Part.LineSegment(Vector(-25.9, -10.5, 0), Vector(-25.9, 8.5, 0)), False)
sketch8.addGeometry(Part.LineSegment(Vector(-25.9, 8.5, 0), Vector(-33, -13.5, 0)), False)
sketch8.addGeometry(Part.LineSegment(Vector(-33, -13.5, 0), Vector(-33, -25.4, 0)), False)
sketch8.addGeometry(Part.LineSegment(Vector(-33, -25.4, 0), Vector(-22.9, -13.5, 0)), False)
sketch8.addConstraint(Sketcher.Constraint("Coincident", 0, 2, 1, 1))
sketch8.addConstraint(Sketcher.Constraint("Coincident", 1, 2, 2, 1))
sketch8.addConstraint(Sketcher.Constraint("Coincident", 2, 2, 3, 1))
sketch8.addConstraint(Sketcher.Constraint("Coincident", 3, 2, 4, 1))
sketch8.addConstraint(Sketcher.Constraint("Coincident", 4, 2, 0, 1))
sketch8.addConstraint(Sketcher.Constraint("Vertical", 1))
sketch8.addConstraint(Sketcher.Constraint("Vertical", 3))
sketch8.addConstraint(Sketcher.Constraint("Horizontal", 2, 2, 4, 2))
sketch8.addConstraint(Sketcher.Constraint("DistanceY", 1, 1, 1, 2, Q("19 mm")))
sketch8.addConstraint(Sketcher.Constraint("Angle", 0, Q("135 deg")))
sketch8.addConstraint(Sketcher.Constraint("DistanceY", 2, 2, 0, 2, Q("3 mm")))
sketch8.addConstraint(Sketcher.Constraint("DistanceX", 0, 2, -1, 1, Q("25.9 mm")))
sketch8.addConstraint(Sketcher.Constraint("DistanceY", 0, 2, -1, 1, Q("10.5 mm")))
sketch8.addConstraint(Sketcher.Constraint("Distance", 4, Q("15.615931 mm")))
sketch8.addConstraint(Sketcher.Constraint("DistanceY", 3, 2, 3, 1, Q("11.903043 mm")))
pad4 = body.newObject("PartDesign::Pad", "Pad003")
pad4.Profile = sketch8
pad4.Length = 3
pad4.Reversed = True
doc.recompute()

fillet = body.newObject("PartDesign::Fillet", "Fillet")
fillet.Base = (pad4, edges_at(pad4, [(-33.008, -25.403, 1.5)]))
fillet.Radius = 1
doc.recompute()

chamfer = body.newObject("PartDesign::Chamfer", "Chamfer")
chamfer.Base = (fillet, edges_at(fillet, [
    (24.9, -21.5, 1.5),
    (24.9, 21.5, 1.5),
    (24.9, 14.5, 1.5),
    (24.9, -12.5, 1.5),
]))
chamfer.Size = 0.5

# Sketch on XY plane
sketch9 = body.newObject("Sketcher::SketchObject", "Sketch008")
sketch9.AttachmentSupport = (doc.getObject("XY_Plane"), [""])
sketch9.MapMode = "FlatFace"
sketch9.addGeometry(Part.Circle(Vector(-21.4, -1.1, 0), Vector(0, 0, 1), 1.8), False)
sketch9.addConstraint(Sketcher.Constraint("Diameter", 0, Q("3.6 mm")))
sketch9.addConstraint(Sketcher.Constraint("DistanceX", 0, 3, -1, 1, Q("21.4 mm")))
sketch9.addConstraint(Sketcher.Constraint("DistanceY", 0, 3, -1, 1, Q("1.053345 mm")))
pad5 = body.newObject("PartDesign::Pad", "Pad004")
pad5.Profile = sketch9
pad5.Length = 3

# Sketch on XY plane
sketch10 = body.newObject("Sketcher::SketchObject", "Sketch009")
sketch10.AttachmentSupport = (doc.getObject("XY_Plane"), [""])
sketch10.MapMode = "FlatFace"
sketch10.AttachmentOffset = App.Placement(Vector(0, 0, 3), App.Rotation())
sketch10.addGeometry(Part.Circle(Vector(-21.4, -2.9, 0), Vector(0, 0, 1), 1.4), False)
sketch10.addConstraint(Sketcher.Constraint("Diameter", 0, Q("2.8 mm")))
sketch10.addConstraint(Sketcher.Constraint("DistanceX", 0, 3, -1, 1, Q("21.4 mm")))
sketch10.addConstraint(Sketcher.Constraint("DistanceY", 0, 3, -1, 1, Q("2.885387 mm")))
pocket5 = body.newObject("PartDesign::Pocket", "Pocket004")
pocket5.Profile = sketch10
pocket5.Length = 3

doc.recompute()
